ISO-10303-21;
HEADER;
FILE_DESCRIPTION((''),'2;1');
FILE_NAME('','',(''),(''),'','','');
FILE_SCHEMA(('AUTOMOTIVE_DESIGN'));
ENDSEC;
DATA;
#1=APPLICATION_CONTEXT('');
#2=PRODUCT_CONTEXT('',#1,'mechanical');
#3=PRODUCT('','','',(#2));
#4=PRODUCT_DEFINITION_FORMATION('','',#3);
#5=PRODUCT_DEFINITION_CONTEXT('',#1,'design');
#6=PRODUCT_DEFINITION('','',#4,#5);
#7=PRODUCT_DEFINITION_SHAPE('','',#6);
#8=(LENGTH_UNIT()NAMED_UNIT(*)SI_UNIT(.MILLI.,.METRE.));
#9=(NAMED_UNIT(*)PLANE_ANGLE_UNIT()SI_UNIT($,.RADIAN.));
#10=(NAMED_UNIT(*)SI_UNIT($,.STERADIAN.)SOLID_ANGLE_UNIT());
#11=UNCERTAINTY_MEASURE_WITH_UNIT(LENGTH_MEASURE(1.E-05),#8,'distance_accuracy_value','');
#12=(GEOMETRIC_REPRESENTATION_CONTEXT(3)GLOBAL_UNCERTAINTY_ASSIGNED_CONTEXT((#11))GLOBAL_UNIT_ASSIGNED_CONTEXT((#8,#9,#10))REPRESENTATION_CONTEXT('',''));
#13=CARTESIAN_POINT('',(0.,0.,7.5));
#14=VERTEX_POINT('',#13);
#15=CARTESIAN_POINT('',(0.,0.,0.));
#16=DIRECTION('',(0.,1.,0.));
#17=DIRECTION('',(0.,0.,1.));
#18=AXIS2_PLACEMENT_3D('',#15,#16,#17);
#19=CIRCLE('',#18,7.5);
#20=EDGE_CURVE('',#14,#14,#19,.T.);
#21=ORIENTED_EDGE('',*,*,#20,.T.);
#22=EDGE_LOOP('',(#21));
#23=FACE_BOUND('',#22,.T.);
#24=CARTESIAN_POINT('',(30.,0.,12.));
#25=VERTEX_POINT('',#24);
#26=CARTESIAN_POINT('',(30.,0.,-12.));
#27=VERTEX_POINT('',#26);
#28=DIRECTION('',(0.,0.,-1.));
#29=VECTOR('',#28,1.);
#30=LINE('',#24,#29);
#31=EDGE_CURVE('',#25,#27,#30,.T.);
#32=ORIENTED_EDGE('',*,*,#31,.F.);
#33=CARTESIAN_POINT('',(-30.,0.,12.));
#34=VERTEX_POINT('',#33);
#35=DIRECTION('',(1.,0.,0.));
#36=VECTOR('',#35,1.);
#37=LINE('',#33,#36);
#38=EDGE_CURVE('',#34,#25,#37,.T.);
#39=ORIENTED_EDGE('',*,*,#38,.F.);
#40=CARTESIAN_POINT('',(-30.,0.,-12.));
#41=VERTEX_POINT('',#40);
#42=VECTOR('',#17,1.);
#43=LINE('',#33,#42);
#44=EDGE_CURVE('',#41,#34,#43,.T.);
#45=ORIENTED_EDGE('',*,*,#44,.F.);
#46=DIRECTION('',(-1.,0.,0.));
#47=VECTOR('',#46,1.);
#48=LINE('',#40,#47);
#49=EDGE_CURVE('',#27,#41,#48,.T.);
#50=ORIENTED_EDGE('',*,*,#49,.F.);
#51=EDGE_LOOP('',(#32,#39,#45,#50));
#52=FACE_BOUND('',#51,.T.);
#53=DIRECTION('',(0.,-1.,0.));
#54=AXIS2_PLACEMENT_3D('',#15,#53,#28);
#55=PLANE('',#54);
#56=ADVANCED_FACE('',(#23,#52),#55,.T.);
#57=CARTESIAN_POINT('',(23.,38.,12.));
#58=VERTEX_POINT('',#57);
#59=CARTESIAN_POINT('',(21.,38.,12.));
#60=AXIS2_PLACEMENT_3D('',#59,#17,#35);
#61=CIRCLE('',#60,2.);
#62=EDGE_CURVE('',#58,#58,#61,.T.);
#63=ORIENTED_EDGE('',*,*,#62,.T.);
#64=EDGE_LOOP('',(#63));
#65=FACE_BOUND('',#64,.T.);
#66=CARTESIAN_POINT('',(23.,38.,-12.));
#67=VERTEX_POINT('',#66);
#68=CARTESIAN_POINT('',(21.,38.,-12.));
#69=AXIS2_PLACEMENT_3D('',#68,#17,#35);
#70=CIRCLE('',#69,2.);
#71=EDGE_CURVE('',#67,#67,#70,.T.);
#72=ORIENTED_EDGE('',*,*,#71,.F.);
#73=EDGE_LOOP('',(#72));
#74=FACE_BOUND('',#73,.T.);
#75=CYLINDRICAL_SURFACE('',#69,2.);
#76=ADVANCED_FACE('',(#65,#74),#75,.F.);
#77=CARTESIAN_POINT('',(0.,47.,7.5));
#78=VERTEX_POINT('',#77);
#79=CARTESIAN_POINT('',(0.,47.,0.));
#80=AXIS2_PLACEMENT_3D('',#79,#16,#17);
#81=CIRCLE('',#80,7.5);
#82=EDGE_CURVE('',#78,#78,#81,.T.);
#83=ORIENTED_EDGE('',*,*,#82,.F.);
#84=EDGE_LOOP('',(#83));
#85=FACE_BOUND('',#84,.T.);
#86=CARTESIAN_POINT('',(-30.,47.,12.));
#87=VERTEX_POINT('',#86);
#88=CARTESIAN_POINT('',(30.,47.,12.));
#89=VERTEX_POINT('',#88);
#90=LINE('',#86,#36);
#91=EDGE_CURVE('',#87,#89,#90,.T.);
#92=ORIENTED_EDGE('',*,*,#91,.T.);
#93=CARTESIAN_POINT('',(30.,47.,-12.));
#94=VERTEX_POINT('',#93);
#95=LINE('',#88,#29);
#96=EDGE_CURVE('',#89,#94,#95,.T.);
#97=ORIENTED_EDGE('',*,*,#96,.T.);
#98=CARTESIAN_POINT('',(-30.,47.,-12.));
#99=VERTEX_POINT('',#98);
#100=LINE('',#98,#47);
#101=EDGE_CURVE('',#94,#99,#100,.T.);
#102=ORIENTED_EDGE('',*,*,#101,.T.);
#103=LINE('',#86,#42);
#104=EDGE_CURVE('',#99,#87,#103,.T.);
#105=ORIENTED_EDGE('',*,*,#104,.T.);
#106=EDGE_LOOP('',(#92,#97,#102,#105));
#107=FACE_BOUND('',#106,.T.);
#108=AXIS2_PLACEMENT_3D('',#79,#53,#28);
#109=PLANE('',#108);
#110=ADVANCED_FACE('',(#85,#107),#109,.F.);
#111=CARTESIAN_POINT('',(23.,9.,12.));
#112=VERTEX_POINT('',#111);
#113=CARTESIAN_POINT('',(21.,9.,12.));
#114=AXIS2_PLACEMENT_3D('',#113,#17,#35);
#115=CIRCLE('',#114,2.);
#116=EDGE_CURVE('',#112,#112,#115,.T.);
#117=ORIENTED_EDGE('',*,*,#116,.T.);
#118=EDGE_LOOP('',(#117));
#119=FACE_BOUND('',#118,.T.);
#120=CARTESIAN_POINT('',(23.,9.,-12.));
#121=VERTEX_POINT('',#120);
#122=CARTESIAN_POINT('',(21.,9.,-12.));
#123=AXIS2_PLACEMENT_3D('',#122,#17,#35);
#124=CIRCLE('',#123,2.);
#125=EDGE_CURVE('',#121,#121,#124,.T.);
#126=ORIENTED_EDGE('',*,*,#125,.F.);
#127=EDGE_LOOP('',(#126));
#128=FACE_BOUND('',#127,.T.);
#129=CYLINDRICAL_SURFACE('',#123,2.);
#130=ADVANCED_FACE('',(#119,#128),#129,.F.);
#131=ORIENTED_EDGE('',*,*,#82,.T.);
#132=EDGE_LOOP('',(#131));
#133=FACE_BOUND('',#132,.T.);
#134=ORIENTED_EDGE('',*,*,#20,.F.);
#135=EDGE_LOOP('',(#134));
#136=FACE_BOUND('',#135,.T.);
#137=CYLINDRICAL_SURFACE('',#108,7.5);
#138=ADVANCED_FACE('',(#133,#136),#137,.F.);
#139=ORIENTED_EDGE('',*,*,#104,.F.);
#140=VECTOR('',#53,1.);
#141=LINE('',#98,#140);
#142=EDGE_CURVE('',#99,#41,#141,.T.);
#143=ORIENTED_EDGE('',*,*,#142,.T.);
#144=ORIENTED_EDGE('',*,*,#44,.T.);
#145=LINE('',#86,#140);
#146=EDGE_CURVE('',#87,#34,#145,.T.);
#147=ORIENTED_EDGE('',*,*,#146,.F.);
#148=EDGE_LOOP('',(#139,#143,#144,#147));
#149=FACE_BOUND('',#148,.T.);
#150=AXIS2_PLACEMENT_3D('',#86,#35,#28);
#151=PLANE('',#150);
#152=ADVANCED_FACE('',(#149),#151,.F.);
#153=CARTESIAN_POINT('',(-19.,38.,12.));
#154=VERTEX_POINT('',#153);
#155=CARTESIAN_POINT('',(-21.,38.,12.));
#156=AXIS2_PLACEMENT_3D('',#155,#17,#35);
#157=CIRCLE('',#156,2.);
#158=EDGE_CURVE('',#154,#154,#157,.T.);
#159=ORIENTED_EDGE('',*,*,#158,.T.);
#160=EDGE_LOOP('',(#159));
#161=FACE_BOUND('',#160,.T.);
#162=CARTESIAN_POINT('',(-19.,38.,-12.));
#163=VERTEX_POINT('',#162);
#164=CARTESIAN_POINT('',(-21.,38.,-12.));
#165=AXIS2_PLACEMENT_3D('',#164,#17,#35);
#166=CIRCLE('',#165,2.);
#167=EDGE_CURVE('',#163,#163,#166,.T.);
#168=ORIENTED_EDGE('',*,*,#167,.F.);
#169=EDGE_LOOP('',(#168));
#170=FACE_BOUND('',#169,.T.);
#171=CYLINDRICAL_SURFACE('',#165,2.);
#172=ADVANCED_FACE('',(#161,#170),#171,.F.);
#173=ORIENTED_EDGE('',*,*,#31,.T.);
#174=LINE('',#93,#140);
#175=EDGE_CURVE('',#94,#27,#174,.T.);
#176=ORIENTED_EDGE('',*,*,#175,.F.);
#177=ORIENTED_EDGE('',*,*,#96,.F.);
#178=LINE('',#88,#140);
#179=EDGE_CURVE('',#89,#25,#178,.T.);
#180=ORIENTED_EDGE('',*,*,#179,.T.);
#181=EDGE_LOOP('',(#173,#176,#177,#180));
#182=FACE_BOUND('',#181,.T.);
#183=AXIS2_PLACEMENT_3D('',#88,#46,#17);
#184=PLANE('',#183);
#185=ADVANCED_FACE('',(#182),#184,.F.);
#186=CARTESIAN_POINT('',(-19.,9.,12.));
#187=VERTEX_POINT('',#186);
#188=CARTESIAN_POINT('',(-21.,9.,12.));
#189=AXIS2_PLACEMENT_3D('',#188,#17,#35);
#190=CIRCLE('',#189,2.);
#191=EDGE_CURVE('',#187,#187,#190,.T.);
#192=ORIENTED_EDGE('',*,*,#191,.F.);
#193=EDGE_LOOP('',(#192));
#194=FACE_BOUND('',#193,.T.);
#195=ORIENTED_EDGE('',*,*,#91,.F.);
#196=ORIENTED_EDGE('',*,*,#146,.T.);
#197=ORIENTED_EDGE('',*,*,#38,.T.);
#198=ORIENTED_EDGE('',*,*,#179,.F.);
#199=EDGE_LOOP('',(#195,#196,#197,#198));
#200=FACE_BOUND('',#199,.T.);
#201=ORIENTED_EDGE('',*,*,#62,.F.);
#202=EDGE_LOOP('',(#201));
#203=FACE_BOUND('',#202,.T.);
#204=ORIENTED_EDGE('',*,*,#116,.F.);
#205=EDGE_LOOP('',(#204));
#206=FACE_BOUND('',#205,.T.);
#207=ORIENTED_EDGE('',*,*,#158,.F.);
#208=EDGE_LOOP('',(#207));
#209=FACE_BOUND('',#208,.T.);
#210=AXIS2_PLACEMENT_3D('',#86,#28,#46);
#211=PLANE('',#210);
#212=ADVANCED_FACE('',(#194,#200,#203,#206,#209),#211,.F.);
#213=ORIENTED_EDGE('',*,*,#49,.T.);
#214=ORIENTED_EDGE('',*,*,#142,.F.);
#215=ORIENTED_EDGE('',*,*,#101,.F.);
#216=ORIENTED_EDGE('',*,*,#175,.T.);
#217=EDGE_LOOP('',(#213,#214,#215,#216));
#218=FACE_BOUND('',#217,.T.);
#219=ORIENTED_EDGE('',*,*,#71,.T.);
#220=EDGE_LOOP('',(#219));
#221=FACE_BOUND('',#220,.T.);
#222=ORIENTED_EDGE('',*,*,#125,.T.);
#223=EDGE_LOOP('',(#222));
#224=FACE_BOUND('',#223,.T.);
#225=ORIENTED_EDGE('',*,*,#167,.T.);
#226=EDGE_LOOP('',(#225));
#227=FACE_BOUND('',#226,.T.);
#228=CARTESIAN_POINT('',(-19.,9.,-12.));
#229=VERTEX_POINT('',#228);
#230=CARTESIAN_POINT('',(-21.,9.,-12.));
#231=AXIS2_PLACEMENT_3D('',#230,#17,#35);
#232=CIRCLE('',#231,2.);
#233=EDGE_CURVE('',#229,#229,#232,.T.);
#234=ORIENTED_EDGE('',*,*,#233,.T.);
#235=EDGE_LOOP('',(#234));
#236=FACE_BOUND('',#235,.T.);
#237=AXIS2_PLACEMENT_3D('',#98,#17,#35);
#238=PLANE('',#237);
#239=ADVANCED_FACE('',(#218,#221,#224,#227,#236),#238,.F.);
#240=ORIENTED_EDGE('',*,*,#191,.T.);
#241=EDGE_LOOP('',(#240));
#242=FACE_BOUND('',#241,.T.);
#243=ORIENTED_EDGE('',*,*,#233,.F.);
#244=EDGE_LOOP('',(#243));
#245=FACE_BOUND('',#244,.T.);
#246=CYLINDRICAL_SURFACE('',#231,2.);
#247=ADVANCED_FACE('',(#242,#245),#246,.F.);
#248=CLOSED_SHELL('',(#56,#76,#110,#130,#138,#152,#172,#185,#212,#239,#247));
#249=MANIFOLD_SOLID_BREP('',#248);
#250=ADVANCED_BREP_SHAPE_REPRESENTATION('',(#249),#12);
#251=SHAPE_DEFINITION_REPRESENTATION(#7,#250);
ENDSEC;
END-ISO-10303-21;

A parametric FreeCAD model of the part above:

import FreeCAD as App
import Part
import Sketcher

V = App.Vector

doc = App.newDocument("Part")
body = doc.addObject("PartDesign::Body", "Body")

# Sketch on XZ plane
sketch1 = body.newObject("Sketcher::SketchObject", "Sketch")
sketch1.AttachmentSupport = (doc.getObject("XZ_Plane"), [""])
sketch1.MapMode = "FlatFace"
sketch1.addGeometry([
    Part.LineSegment(V(-30, -12, 0), V(-30, 12, 0)),  # 0
    Part.LineSegment(V(-30, 12, 0), V(30, 12, 0)),  # 1
    Part.LineSegment(V(30, 12, 0), V(30, -12, 0)),  # 2
    Part.LineSegment(V(30, -12, 0), V(-30, -12, 0)),  # 3
    Part.Circle(V(0, 0, 0), V(0, 0, 1), 7.5),  # 4
], False)
sketch1.addConstraint([
    Sketcher.Constraint("Coincident", 0, 2, 1, 1),
    Sketcher.Constraint("Coincident", 1, 2, 2, 1),
    Sketcher.Constraint("Coincident", 2, 2, 3, 1),
    Sketcher.Constraint("Coincident", 3, 2, 0, 1),
    Sketcher.Constraint("Vertical", 0),
    Sketcher.Constraint("Horizontal", 1),
    Sketcher.Constraint("Vertical", 2),
    Sketcher.Constraint("Horizontal", 3),
    Sketcher.Constraint("Coincident", 4, 3, -1, 1),
    Sketcher.Constraint("Symmetric", 0, 2, 2, 2, -1, 1),
    Sketcher.Constraint("Diameter", 4, 15.0),
    Sketcher.Constraint("DistanceX", 1, 1, 1, 2, 60.0),
    Sketcher.Constraint("DistanceY", 0, 1, 0, 2, 24.0),
])
pad1 = body.newObject("PartDesign::Pad", "Pad")
pad1.Profile = sketch1
pad1.Length = 47
pad1.Reversed = True

# Sketch on XZ plane
sketch2 = body.newObject("Sketcher::SketchObject", "Sketch001")
sketch2.AttachmentSupport = (doc.getObject("XZ_Plane"), [""])
sketch2.MapMode = "FlatFace"
sketch2.addGeometry([
    Part.LineSegment(V(-30, -12, 0), V(-30, 12, 0)),  # 0
    Part.LineSegment(V(-30, 12, 0), V(30, 12, 0)),  # 1
    Part.LineSegment(V(30, 12, 0), V(30, -12, 0)),  # 2
    Part.LineSegment(V(30, -12, 0), V(-30, -12, 0)),  # 3
    Part.Circle(V(0, 0, 0), V(0, 0, 1), 7.5),  # 4
], False)
sketch2.addConstraint([
    Sketcher.Constraint("Coincident", 0, 2, 1, 1),
    Sketcher.Constraint("Coincident", 1, 2, 2, 1),
    Sketcher.Constraint("Coincident", 2, 2, 3, 1),
    Sketcher.Constraint("Coincident", 3, 2, 0, 1),
    Sketcher.Constraint("Vertical", 0),
    Sketcher.Constraint("Horizontal", 1),
    Sketcher.Constraint("Vertical", 2),
    Sketcher.Constraint("Horizontal", 3),
    Sketcher.Constraint("Coincident", 4, 3, -1, 1),
    Sketcher.Constraint("Symmetric", 0, 2, 2, 2, -1, 1),
    Sketcher.Constraint("Diameter", 4, 15.0),
    Sketcher.Constraint("DistanceX", 1, 1, 1, 2, 60.0),
    Sketcher.Constraint("DistanceY", 0, 1, 0, 2, 24.0),
])
pad2 = body.newObject("PartDesign::Pad", "Pad001")
pad2.Profile = sketch2
pad2.Length = 25.5
pad2.Reversed = True

# Sketch on XY plane
sketch3 = body.newObject("Sketcher::SketchObject", "Sketch002")
sketch3.AttachmentSupport = (doc.getObject("XY_Plane"), [""])
sketch3.MapMode = "FlatFace"
sketch3.AttachmentOffset = App.Placement(V(0, 0, 12), App.Rotation())
sketch3.addGeometry([
    Part.Circle(V(-21, 9, 0), V(0, 0, 1), 2),
    Part.Circle(V(-21, 38, 0), V(0, 0, 1), 2),
    Part.Circle(V(21, 38, 0), V(0, 0, 1), 2),
    Part.Circle(V(21, 9, 0), V(0, 0, 1), 2),
], False)
sketch3.addConstraint([
    Sketcher.Constraint("Equal", 0, 1),
    Sketcher.Constraint("Equal", 1, 2),
    Sketcher.Constraint("Equal", 2, 3),
    Sketcher.Constraint("Symmetric", 1, 3, 2, 3, -2),
    Sketcher.Constraint("Symmetric", 0, 3, 3, 3, -2),
    Sketcher.Constraint("Vertical", 0, 3, 1, 3),
    Sketcher.Constraint("Diameter", 0, 4.0),
    Sketcher.Constraint("DistanceX", 0, 3, -1, 1, 21.0),
    Sketcher.Constraint("DistanceY", -1, 1, 0, 3, 9.0),
    Sketcher.Constraint("DistanceY", -1, 1, 1, 3, 38.0),
])
pocket1 = body.newObject("PartDesign::Pocket", "Pocket")
pocket1.Profile = sketch3
pocket1.Type = "ThroughAll"

doc.recompute()
